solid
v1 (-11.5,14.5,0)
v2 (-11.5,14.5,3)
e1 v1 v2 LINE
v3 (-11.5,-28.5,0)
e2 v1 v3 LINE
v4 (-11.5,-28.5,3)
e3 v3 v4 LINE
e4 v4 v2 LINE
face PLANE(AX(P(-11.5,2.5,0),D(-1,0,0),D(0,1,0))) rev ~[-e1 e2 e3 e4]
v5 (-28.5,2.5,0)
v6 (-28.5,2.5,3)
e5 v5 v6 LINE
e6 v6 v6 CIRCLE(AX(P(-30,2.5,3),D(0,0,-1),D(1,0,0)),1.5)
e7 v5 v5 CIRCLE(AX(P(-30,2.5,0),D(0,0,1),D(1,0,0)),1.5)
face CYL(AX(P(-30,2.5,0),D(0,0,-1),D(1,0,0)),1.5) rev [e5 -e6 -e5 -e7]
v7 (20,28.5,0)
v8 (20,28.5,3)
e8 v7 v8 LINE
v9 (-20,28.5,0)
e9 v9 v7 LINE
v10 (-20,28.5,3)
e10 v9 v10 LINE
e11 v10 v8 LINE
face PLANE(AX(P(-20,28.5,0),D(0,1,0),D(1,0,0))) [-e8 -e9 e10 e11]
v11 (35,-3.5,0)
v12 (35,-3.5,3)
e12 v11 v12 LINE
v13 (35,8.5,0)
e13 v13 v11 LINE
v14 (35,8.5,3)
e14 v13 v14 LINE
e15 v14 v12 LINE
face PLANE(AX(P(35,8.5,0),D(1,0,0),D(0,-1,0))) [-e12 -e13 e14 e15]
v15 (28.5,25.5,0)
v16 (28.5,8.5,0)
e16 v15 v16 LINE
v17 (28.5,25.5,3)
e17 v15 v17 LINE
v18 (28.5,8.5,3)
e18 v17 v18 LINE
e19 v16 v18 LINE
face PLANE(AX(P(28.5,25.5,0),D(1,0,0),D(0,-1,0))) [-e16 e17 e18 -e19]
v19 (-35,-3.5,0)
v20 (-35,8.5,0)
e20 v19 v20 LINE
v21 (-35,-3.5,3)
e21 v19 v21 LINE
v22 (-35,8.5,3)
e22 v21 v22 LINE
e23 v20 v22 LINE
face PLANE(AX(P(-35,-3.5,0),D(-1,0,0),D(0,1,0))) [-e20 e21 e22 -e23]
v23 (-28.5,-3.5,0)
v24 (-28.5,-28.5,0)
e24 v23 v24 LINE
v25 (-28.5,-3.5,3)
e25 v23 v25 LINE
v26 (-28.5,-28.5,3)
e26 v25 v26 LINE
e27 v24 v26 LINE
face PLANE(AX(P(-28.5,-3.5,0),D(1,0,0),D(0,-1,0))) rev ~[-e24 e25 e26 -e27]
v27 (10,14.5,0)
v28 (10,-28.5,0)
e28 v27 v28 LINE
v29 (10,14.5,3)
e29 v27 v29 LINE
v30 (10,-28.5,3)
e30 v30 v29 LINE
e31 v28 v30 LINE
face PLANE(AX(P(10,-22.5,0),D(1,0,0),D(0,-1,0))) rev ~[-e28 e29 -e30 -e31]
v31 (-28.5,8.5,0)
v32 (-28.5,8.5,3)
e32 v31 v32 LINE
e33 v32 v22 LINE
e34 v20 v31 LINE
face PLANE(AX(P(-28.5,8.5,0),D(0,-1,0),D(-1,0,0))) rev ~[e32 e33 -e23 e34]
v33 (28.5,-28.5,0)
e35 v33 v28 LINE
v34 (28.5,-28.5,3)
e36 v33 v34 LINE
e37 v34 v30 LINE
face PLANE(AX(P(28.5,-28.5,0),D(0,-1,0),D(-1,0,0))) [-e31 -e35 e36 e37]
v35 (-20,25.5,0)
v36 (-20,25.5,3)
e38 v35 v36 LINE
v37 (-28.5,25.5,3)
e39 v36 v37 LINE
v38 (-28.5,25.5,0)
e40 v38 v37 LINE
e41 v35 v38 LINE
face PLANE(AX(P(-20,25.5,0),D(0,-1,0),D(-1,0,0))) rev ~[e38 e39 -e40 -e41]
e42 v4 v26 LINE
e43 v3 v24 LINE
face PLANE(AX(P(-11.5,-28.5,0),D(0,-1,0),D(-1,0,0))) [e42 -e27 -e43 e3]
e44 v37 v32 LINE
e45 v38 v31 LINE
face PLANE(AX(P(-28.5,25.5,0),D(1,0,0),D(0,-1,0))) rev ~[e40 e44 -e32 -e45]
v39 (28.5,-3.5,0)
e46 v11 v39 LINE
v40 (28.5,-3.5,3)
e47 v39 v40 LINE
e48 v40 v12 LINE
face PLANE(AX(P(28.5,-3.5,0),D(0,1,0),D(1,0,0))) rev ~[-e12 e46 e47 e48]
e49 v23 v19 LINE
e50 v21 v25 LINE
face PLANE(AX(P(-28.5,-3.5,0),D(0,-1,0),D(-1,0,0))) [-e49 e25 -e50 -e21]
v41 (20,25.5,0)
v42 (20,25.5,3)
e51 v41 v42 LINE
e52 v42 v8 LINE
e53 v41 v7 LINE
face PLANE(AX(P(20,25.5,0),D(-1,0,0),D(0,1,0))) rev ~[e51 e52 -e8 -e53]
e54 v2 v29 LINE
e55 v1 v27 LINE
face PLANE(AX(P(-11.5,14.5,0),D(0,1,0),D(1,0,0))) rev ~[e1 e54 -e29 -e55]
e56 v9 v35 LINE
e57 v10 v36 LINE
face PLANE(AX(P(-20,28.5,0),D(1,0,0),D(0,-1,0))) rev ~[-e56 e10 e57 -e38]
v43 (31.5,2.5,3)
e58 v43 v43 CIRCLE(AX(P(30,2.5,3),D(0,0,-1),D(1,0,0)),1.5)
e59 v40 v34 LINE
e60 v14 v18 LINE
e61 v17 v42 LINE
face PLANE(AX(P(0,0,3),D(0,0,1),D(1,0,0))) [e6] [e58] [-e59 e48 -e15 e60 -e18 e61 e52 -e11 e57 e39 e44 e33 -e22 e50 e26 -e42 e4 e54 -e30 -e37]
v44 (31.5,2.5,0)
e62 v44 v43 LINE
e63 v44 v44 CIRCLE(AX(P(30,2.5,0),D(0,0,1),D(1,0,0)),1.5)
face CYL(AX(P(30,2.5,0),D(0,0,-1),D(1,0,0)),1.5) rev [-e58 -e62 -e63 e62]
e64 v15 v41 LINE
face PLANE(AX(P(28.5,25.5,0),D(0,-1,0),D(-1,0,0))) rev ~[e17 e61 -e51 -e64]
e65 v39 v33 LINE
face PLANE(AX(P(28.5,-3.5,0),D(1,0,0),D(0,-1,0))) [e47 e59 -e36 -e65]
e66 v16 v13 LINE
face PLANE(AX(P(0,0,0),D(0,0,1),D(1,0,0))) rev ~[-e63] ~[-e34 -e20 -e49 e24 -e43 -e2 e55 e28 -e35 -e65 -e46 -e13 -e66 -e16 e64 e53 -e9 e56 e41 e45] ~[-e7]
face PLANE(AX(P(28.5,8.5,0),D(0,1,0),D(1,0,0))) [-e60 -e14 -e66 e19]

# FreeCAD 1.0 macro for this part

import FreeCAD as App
import Part
import Sketcher
from FreeCAD import Vector

doc = App.newDocument("Part")
body = doc.addObject("PartDesign::Body", "Body")

# Sketch on XY plane
sketch1 = body.newObject("Sketcher::SketchObject", "Sketch")
sketch1.AttachmentSupport = (doc.getObject("XY_Plane"), [""])
sketch1.MapMode = "FlatFace"
sketch1.addGeometry([
    Part.LineSegment(Vector(10, -28.5, 0), Vector(28.5, -28.5, 0)),  # 0
    Part.LineSegment(Vector(28.5, -28.5, 0), Vector(28.5, -3.5, 0)),  # 1
    Part.LineSegment(Vector(28.5, -3.5, 0), Vector(35, -3.5, 0)),  # 2
    Part.LineSegment(Vector(35, -3.5, 0), Vector(35, 8.5, 0)),  # 3
    Part.LineSegment(Vector(35, 8.5, 0), Vector(28.5, 8.5, 0)),  # 4
    Part.LineSegment(Vector(28.5, 8.5, 0), Vector(28.5, 25.5, 0)),  # 5
    Part.LineSegment(Vector(28.5, 25.5, 0), Vector(20, 25.5, 0)),  # 6
    Part.LineSegment(Vector(20, 25.5, 0), Vector(20, 28.5, 0)),  # 7
    Part.LineSegment(Vector(20, 28.5, 0), Vector(-20, 28.5, 0)),  # 8
    Part.LineSegment(Vector(-20, 28.5, 0), Vector(-20, 25.5, 0)),  # 9
    Part.LineSegment(Vector(-20, 25.5, 0), Vector(-28.5, 25.5, 0)),  # 10
    Part.LineSegment(Vector(-28.5, 25.5, 0), Vector(-28.5, 8.5, 0)),  # 11
    Part.LineSegment(Vector(-28.5, 8.5, 0), Vector(-35, 8.5, 0)),  # 12
    Part.LineSegment(Vector(-35, 8.5, 0), Vector(-35, -3.5, 0)),  # 13
    Part.LineSegment(Vector(-35, -3.5, 0), Vector(-28.5, -3.5, 0)),  # 14
    Part.LineSegment(Vector(-28.5, -3.5, 0), Vector(-28.5, -28.5, 0)),  # 15
    Part.LineSegment(Vector(-28.5, -28.5, 0), Vector(-11.5, -28.5, 0)),  # 16
    Part.LineSegment(Vector(-11.5, -28.5, 0), Vector(-11.5, 14.5, 0)),  # 17
    Part.LineSegment(Vector(-11.5, 14.5, 0), Vector(10, 14.5, 0)),  # 18
    Part.LineSegment(Vector(10, 14.5, 0), Vector(10, -28.5, 0)),  # 19
    Part.Circle(Vector(30, 2.5, 0), Vector(0, 0, 1), 1.5),  # 20
    Part.Circle(Vector(-30, 2.5, 0), Vector(0, 0, 1), 1.5),  # 21
], False)
sketch1.addConstraint([
    Sketcher.Constraint("Coincident", 0, 2, 1, 1),
    Sketcher.Constraint("Coincident", 1, 2, 2, 1),
    Sketcher.Constraint("Coincident", 2, 2, 3, 1),
    Sketcher.Constraint("Coincident", 3, 2, 4, 1),
    Sketcher.Constraint("Coincident", 4, 2, 5, 1),
    Sketcher.Constraint("Coincident", 5, 2, 6, 1),
    Sketcher.Constraint("Coincident", 6, 2, 7, 1),
    Sketcher.Constraint("Coincident", 7, 2, 8, 1),
    Sketcher.Constraint("Coincident", 8, 2, 9, 1),
    Sketcher.Constraint("Coincident", 9, 2, 10, 1),
    Sketcher.Constraint("Coincident", 10, 2, 11, 1),
    Sketcher.Constraint("Coincident", 11, 2, 12, 1),
    Sketcher.Constraint("Coincident", 12, 2, 13, 1),
    Sketcher.Constraint("Coincident", 13, 2, 14, 1),
    Sketcher.Constraint("Coincident", 14, 2, 15, 1),
    Sketcher.Constraint("Coincident", 15, 2, 16, 1),
    Sketcher.Constraint("Coincident", 16, 2, 17, 1),
    Sketcher.Constraint("Coincident", 17, 2, 18, 1),
    Sketcher.Constraint("Coincident", 18, 2, 19, 1),
    Sketcher.Constraint("Coincident", 19, 2, 0, 1),
    Sketcher.Constraint("Horizontal", 0),
    Sketcher.Constraint("Vertical", 1),
    Sketcher.Constraint("Horizontal", 2),
    Sketcher.Constraint("Vertical", 3),
    Sketcher.Constraint("Horizontal", 4),
    Sketcher.Constraint("Vertical", 5),
    Sketcher.Constraint("Horizontal", 6),
    Sketcher.Constraint("Vertical", 7),
    Sketcher.Constraint("Horizontal", 8),
    Sketcher.Constraint("Vertical", 9),
    Sketcher.Constraint("Horizontal", 10),
    Sketcher.Constraint("Vertical", 11),
    Sketcher.Constraint("Horizontal", 12),
    Sketcher.Constraint("Vertical", 13),
    Sketcher.Constraint("Horizontal", 14),
    Sketcher.Constraint("Vertical", 15),
    Sketcher.Constraint("Horizontal", 16),
    Sketcher.Constraint("Vertical", 17),
    Sketcher.Constraint("Horizontal", 18),
    Sketcher.Constraint("Vertical", 19),
    Sketcher.Constraint("Equal", 20, 21),
    Sketcher.Constraint("Symmetric", 20, 3, 21, 3, -2),
    Sketcher.Constraint("Symmetric", 6, 2, 9, 2, -2),
    Sketcher.Constraint("Symmetric", 4, 2, 11, 2, -2),
    Sketcher.Constraint("Symmetric", 2, 2, 13, 2, -2),
    Sketcher.Constraint("Symmetric", 0, 2, 15, 2, -2),
    Sketcher.Constraint("Vertical", 1, 2, 4, 2),
    Sketcher.Constraint("Equal", 16, 5),
    Sketcher.Constraint("Diameter", 20, 3.0),
    Sketcher.Constraint("DistanceX", 8, 2, 8, 1, 40.0),
    Sketcher.Constraint("DistanceY", 3, 1, 3, 2, 12.0),
    Sketcher.Constraint("DistanceY", 7, 1, 7, 2, 3.0),
    Sketcher.Constraint("DistanceY", 20, 3, 5, 2, 23.0),
    Sketcher.Constraint("DistanceY", 4, 2, 7, 2, 20.0),
    Sketcher.Constraint("DistanceX", 16, 2, 0, 2, 40.0),
    Sketcher.Constraint("DistanceY", 21, 3, 17, 2, 12.0),
    Sketcher.Constraint("DistanceX", 19, 2, 20, 3, 20.0),
    Sketcher.Constraint("DistanceY", 1, 1, 1, 2, 25.0),
    Sketcher.Constraint("DistanceX", 0, 1, 0, 2, 18.5),
    Sketcher.Constraint("DistanceX", 2, 1, 2, 2, 6.5),
    Sketcher.Constraint("DistanceY", -1, 1, 20, 3, 2.5),
])
pad1 = body.newObject("PartDesign::Pad", "Pad")
pad1.Profile = sketch1
pad1.Length = 3

doc.recompute()
